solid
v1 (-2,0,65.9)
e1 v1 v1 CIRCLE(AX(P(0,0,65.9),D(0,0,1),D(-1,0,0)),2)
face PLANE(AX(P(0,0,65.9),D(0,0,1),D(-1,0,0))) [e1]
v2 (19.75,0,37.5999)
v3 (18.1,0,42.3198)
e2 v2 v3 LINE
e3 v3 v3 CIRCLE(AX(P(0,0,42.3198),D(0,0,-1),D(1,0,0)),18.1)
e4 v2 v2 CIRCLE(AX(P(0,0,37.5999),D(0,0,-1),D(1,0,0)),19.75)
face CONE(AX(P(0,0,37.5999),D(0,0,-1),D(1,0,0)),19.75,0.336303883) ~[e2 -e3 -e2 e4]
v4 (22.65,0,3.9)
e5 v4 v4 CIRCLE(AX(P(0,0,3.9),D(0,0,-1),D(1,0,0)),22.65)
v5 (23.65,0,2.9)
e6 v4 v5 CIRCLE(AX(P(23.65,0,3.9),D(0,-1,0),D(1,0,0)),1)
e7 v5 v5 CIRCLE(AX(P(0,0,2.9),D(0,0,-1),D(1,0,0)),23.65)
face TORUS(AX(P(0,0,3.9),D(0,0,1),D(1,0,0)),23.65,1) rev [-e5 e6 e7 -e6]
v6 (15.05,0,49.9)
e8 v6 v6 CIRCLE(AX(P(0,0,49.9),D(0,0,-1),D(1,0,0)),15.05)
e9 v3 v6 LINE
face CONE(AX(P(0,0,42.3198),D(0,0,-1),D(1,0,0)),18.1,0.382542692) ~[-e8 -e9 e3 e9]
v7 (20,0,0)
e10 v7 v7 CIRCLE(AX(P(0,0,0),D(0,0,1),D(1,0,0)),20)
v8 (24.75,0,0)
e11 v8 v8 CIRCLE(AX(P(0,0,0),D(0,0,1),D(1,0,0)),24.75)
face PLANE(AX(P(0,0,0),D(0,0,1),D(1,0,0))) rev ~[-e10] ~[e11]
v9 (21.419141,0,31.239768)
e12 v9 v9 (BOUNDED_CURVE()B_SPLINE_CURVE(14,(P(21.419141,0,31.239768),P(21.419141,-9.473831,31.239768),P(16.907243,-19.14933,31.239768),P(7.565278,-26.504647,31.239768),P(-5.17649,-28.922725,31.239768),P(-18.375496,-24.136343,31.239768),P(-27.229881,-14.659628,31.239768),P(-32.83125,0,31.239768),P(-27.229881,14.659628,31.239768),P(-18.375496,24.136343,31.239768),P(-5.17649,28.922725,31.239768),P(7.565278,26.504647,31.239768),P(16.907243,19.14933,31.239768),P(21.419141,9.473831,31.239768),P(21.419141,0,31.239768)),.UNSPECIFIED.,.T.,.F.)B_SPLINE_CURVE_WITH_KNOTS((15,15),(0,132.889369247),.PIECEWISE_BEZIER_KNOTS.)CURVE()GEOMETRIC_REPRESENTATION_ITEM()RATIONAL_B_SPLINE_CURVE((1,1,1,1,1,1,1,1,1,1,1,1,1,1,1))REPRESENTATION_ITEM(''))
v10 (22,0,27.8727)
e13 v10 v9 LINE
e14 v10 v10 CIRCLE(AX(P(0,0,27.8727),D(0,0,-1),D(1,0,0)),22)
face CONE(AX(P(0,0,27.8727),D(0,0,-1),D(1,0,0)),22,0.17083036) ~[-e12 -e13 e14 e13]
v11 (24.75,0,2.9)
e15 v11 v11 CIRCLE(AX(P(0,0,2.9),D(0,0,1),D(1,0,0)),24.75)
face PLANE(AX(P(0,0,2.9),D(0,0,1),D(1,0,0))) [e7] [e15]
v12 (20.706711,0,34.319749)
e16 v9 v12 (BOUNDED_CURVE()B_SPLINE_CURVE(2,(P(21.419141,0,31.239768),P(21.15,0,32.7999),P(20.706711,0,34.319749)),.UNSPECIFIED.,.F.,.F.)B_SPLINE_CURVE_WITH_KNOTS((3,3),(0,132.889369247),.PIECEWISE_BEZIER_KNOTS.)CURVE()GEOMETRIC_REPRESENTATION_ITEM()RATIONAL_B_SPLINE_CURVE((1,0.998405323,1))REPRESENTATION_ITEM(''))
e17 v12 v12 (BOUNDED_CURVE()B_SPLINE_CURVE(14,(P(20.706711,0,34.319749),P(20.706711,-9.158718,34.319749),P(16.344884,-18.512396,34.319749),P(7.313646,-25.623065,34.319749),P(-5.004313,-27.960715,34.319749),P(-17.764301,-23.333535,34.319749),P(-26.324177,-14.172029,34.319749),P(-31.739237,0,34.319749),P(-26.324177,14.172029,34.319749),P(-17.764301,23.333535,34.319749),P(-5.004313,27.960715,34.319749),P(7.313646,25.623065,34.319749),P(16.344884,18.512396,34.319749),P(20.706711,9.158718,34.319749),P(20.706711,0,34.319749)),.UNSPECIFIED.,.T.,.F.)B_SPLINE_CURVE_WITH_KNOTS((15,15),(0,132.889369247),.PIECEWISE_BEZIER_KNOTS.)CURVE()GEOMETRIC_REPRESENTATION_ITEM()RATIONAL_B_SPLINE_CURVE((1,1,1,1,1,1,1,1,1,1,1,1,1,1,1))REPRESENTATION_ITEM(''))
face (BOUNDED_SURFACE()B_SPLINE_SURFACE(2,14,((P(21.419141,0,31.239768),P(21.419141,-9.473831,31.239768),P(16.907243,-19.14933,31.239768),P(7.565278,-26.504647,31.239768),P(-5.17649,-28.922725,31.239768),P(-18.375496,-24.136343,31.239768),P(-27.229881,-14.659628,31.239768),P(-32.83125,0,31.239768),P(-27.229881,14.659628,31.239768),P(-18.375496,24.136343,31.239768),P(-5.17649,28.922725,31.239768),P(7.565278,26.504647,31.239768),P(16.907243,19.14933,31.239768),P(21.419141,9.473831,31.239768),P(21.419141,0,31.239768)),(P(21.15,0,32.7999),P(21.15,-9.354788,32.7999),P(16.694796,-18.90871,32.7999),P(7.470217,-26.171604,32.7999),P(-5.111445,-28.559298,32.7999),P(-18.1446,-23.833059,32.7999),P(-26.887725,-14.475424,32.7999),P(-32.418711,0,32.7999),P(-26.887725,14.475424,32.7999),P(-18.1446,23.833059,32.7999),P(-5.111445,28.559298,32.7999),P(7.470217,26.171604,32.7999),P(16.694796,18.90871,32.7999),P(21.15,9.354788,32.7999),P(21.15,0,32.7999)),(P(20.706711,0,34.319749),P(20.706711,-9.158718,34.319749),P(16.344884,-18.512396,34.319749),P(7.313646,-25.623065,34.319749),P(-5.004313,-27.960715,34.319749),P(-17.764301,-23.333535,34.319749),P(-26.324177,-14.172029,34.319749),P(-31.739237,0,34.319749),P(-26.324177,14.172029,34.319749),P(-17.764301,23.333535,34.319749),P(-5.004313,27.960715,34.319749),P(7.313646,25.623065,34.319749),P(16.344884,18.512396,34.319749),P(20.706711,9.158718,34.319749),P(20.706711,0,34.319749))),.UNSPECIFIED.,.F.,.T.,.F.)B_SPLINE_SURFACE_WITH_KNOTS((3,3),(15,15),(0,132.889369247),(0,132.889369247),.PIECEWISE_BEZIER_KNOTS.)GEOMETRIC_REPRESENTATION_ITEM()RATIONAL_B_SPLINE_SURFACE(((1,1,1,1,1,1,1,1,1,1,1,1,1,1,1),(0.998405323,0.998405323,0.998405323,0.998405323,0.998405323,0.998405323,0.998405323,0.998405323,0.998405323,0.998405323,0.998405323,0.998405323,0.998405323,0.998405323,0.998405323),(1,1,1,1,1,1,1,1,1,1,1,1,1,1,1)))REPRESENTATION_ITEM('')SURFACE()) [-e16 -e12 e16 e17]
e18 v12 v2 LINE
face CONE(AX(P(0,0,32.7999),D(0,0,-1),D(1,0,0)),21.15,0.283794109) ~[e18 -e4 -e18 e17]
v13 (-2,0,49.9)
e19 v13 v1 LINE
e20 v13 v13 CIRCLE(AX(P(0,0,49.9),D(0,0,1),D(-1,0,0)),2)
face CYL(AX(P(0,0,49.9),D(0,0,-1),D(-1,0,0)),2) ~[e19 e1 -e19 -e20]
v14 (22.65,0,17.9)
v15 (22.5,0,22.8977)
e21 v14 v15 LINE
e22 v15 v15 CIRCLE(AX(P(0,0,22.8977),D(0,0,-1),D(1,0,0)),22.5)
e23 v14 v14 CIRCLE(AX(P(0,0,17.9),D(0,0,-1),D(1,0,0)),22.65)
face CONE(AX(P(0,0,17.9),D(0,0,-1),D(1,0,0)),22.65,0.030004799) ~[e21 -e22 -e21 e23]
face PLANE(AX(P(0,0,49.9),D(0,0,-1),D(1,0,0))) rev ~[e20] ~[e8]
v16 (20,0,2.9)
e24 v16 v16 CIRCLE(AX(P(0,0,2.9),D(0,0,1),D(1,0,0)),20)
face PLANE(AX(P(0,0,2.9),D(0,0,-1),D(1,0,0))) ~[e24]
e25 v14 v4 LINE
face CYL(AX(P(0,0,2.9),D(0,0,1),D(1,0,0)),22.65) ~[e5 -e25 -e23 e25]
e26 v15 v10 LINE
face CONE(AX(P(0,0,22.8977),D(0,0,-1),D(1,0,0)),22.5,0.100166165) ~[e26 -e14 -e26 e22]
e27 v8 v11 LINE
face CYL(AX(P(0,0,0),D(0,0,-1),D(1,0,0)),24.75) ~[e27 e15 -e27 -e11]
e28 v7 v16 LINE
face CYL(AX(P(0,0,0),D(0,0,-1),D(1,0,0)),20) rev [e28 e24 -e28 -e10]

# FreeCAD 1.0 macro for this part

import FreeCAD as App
import Part
import Sketcher

V = App.Vector


def edges_at(feature, points):
    """Names of the edges that pass closest to the given points."""
    edges = feature.Shape.Edges
    near = lambda p: min(range(len(edges)), key=lambda i: edges[i].distToShape(Part.Vertex(*p))[0])
    return sorted({f"Edge{near(p) + 1}" for p in points})


def add_polygon(sketch, points):
    """Adds a closed chain of lines whose ends are joined by coincident constraints."""
    first, n = sketch.GeometryCount, len(points)
    for a, b in zip(points, points[1:] + points[:1]):
        sketch.addGeometry(Part.LineSegment(App.Vector(*a, 0), App.Vector(*b, 0)), False)
    for i in range(n):
        sketch.addConstraint(Sketcher.Constraint("Coincident", first + i, 2, first + (i + 1) % n, 1))

doc = App.newDocument("Part")
body = doc.addObject("PartDesign::Body", "Body")

# Sketch on XY plane
sketch1 = body.newObject("Sketcher::SketchObject", "Sketch")
sketch1.AttachmentSupport = (doc.getObject("XY_Plane"), [""])
sketch1.MapMode = "FlatFace"
sketch1.addGeometry(Part.Circle(V(0, 0, 0), V(0, 0, 1), 24.75), False)
sketch1.addGeometry(Part.Circle(V(0, 0, 0), V(0, 0, 1), 20), False)
sketch1.addConstraint(Sketcher.Constraint("Coincident", 0, 3, -1, 1))
sketch1.addConstraint(Sketcher.Constraint("Coincident", 1, 3, -1, 1))
sketch1.addConstraint(Sketcher.Constraint("Diameter", 1, 40.0))
sketch1.addConstraint(Sketcher.Constraint("Diameter", 0, 49.5))
pad1 = body.newObject("PartDesign::Pad", "Pad")
pad1.Profile = sketch1
pad1.Length = 2.9

# Sketch on XZ plane
sketch2 = body.newObject("Sketcher::SketchObject", "Sketch001")
sketch2.AttachmentSupport = (doc.getObject("XZ_Plane"), [""])
sketch2.MapMode = "FlatFace"
add_polygon(sketch2, [(22.65, 2.9), (0, 2.9), (0, 49.9), (15.05, 49.9), (18.1, 42.3198), (19.75, 37.5999), (21.15, 32.7999), (22, 27.8727), (22.5, 22.8977), (22.65, 17.9)])  # lines 0-9
sketch2.addConstraint(Sketcher.Constraint("Horizontal", 0))
sketch2.addConstraint(Sketcher.Constraint("Vertical", 1))
sketch2.addConstraint(Sketcher.Constraint("Horizontal", 2))
sketch2.addConstraint(Sketcher.Constraint("Vertical", 9))
sketch2.addConstraint(Sketcher.Constraint("PointOnObject", 0, 2, -2))
sketch2.addConstraint(Sketcher.Constraint("Equal", 4, 5))
sketch2.addConstraint(Sketcher.Constraint("Equal", 5, 6))
sketch2.addConstraint(Sketcher.Constraint("Equal", 6, 7))
sketch2.addConstraint(Sketcher.Constraint("Equal", 7, 8))
sketch2.addConstraint(Sketcher.Constraint("DistanceY", 1, 1, 1, 2, 47.0))
sketch2.addConstraint(Sketcher.Constraint("Distance", 4, 5.0))
sketch2.addConstraint(Sketcher.Constraint("DistanceX", -1, 1, 6, 2, 22.0))
sketch2.addConstraint(Sketcher.Constraint("DistanceX", 0, 2, 0, 1, 22.65))
sketch2.addConstraint(Sketcher.Constraint("DistanceX", 2, 1, 2, 2, 15.05))
sketch2.addConstraint(Sketcher.Constraint("DistanceX", -1, 1, 3, 2, 18.1))
sketch2.addConstraint(Sketcher.Constraint("DistanceX", -1, 1, 7, 2, 22.5))
sketch2.addConstraint(Sketcher.Constraint("DistanceY", 9, 2, 9, 1, 15.0))
sketch2.addConstraint(Sketcher.Constraint("DistanceX", -1, 1, 4, 2, 19.75))
sketch2.addConstraint(Sketcher.Constraint("DistanceX", -1, 1, 5, 2, 21.15))
sketch2.addConstraint(Sketcher.Constraint("DistanceY", -1, 1, 0, 2, 2.9))
revolution = body.newObject("PartDesign::Revolution", "Revolution")
revolution.Profile = sketch2
revolution.ReferenceAxis = (sketch2, ["V_Axis"])
revolution.Angle = 360
doc.recompute()

fillet = body.newObject("PartDesign::Fillet", "Fillet")
fillet.Base = (revolution, edges_at(revolution, [
    (-16.875, -6.545, 42.32),
    (-18.413, -7.142, 37.6),
    (-19.719, -7.648, 32.8),
    (-20.511, -7.955, 27.873),
    (-20.977, -8.136, 22.898),
    (-21.117, -8.191, 17.9),
]))
fillet.Radius = 28
doc.recompute()

fillet2 = body.newObject("PartDesign::Fillet", "Fillet001")
fillet2.Base = (fillet, edges_at(fillet, [(-21.117, 8.191, 2.9)]))
fillet2.Radius = 1

# Sketch on XY plane
sketch3 = body.newObject("Sketcher::SketchObject", "Sketch002")
sketch3.AttachmentSupport = (doc.getObject("XY_Plane"), [""])
sketch3.MapMode = "FlatFace"
sketch3.AttachmentOffset = App.Placement(V(0, 0, 49.9), App.Rotation())
sketch3.addGeometry(Part.Circle(V(0, 0, 0), V(0, 0, 1), 2), False)
sketch3.addConstraint(Sketcher.Constraint("Coincident", 0, 3, -1, 1))
sketch3.addConstraint(Sketcher.Constraint("Diameter", 0, 4.0))
pad2 = body.newObject("PartDesign::Pad", "Pad001")
pad2.Profile = sketch3
pad2.Length = 16

doc.recompute()
